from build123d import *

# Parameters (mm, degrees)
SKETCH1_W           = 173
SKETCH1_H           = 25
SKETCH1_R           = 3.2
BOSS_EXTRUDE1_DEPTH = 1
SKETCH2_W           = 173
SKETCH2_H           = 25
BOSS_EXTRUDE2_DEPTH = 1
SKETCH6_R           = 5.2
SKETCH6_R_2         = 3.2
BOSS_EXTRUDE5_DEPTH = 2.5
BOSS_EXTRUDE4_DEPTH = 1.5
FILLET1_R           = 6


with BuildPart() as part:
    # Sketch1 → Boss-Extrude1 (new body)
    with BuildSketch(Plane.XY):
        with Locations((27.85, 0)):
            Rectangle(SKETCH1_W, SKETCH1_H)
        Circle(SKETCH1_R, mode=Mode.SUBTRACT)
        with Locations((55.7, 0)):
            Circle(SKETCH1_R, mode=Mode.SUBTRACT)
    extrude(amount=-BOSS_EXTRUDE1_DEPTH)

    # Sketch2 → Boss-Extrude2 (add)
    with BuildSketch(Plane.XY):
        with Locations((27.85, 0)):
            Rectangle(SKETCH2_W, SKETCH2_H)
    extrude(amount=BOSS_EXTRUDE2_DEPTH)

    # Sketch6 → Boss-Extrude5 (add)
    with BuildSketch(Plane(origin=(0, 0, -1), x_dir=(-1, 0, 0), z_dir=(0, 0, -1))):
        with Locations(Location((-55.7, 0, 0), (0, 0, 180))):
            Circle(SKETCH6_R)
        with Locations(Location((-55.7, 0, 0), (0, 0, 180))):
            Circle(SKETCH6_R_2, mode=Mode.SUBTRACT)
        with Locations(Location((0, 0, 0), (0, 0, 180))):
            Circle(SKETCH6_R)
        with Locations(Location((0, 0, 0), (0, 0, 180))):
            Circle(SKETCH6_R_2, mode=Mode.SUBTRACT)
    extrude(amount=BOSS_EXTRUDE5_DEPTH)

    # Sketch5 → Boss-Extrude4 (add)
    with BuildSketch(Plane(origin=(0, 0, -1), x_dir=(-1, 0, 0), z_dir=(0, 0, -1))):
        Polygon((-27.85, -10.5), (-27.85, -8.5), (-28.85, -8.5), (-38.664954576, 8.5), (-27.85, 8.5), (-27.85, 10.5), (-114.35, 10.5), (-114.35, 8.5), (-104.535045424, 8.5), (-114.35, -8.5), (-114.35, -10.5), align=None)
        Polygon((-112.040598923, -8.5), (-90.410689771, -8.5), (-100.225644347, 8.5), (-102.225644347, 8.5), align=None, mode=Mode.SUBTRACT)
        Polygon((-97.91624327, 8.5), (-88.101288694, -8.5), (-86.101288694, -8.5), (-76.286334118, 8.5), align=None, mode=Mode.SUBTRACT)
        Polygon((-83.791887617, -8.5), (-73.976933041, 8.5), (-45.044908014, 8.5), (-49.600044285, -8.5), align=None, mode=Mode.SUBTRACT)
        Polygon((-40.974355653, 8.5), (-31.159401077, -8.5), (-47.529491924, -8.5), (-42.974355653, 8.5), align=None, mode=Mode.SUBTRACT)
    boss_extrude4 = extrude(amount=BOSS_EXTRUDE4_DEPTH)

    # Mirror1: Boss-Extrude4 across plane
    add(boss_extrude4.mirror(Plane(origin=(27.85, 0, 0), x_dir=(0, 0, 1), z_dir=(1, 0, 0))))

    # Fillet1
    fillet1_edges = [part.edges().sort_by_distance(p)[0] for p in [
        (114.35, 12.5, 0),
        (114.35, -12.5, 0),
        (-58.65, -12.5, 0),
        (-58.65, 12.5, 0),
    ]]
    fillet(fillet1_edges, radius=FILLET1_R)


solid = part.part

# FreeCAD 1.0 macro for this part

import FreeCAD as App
import Part
import Sketcher
from FreeCAD import Vector
Q = App.Units.Quantity


def edges_at(feature, points):
    """Names of the edges that pass closest to the given points."""
    edges = feature.Shape.Edges
    near = lambda p: min(range(len(edges)), key=lambda i: edges[i].distToShape(Part.Vertex(*p))[0])
    return sorted({f"Edge{near(p) + 1}" for p in points})

doc = App.newDocument("Part")
body = doc.addObject("PartDesign::Body", "Body")

sketch1 = doc.addObject("Sketcher::SketchObject", "Sketch")
body.addObject(sketch1)
sketch1.AttachmentSupport = (doc.XY_Plane, [""])
sketch1.MapMode = "FlatFace"
sketch1.addGeometry([
    Part.LineSegment(Vector(-58.65, 12.5, 0), Vector(-58.65, -12.5, 0)),
    Part.LineSegment(Vector(-58.65, -12.5, 0), Vector(114.35, -12.5, 0)),
    Part.LineSegment(Vector(114.35, -12.5, 0), Vector(114.35, 12.5, 0)),
    Part.LineSegment(Vector(114.35, 12.5, 0), Vector(-58.65, 12.5, 0)),
    Part.Circle(Vector(0, 0, 0), Vector(0, 0, 1), 3.2),
    Part.Circle(Vector(55.7, 0, 0), Vector(0, 0, 1), 3.2),
], False)
sketch1.addConstraint([
    Sketcher.Constraint("Coincident", 0, 2, 1, 1),
    Sketcher.Constraint("Coincident", 1, 2, 2, 1),
    Sketcher.Constraint("Coincident", 2, 2, 3, 1),
    Sketcher.Constraint("Coincident", 3, 2, 0, 1),
    Sketcher.Constraint("Vertical", 0),
    Sketcher.Constraint("Horizontal", 1),
    Sketcher.Constraint("Vertical", 2),
    Sketcher.Constraint("Horizontal", 3),
    Sketcher.Constraint("Coincident", 4, 3, -1, 1),
    Sketcher.Constraint("Equal", 4, 5),
    Sketcher.Constraint("PointOnObject", 5, 3, -1),
    Sketcher.Constraint("Diameter", 4, 6.4),
    Sketcher.Constraint("DistanceX", 1, 1, 1, 2, 173.0),
    Sketcher.Constraint("DistanceY", 0, 2, 0, 1, 25.0),
    Sketcher.Constraint("DistanceX", -1, 1, 5, 3, 55.7),
    Sketcher.Constraint("DistanceY", 0, 2, -1, 1, 12.5),
    Sketcher.Constraint("DistanceX", 0, 2, -1, 1, 58.65),
])
pad1 = doc.addObject("PartDesign::Pad", "Pad")
body.addObject(pad1)
pad1.Profile = sketch1
pad1.Length = 1
pad1.Reversed = True

sketch2 = doc.addObject("Sketcher::SketchObject", "Sketch001")
body.addObject(sketch2)
sketch2.AttachmentSupport = (doc.XY_Plane, [""])
sketch2.MapMode = "FlatFace"
sketch2.addGeometry([
    Part.LineSegment(Vector(-58.65, 12.5, 0), Vector(-58.65, -12.5, 0)),
    Part.LineSegment(Vector(-58.65, -12.5, 0), Vector(114.35, -12.5, 0)),
    Part.LineSegment(Vector(114.35, -12.5, 0), Vector(114.35, 12.5, 0)),
    Part.LineSegment(Vector(114.35, 12.5, 0), Vector(-58.65, 12.5, 0)),
], False)
sketch2.addConstraint([
    Sketcher.Constraint("Coincident", 0, 2, 1, 1),
    Sketcher.Constraint("Coincident", 1, 2, 2, 1),
    Sketcher.Constraint("Coincident", 2, 2, 3, 1),
    Sketcher.Constraint("Coincident", 3, 2, 0, 1),
    Sketcher.Constraint("Vertical", 0),
    Sketcher.Constraint("Horizontal", 1),
    Sketcher.Constraint("Vertical", 2),
    Sketcher.Constraint("Horizontal", 3),
    Sketcher.Constraint("DistanceX", 1, 1, 1, 2, 173.0),
    Sketcher.Constraint("DistanceY", 0, 2, 0, 1, 25.0),
    Sketcher.Constraint("DistanceY", 0, 2, -1, 1, 12.5),
    Sketcher.Constraint("DistanceX", 0, 2, -1, 1, 58.65),
])
pad2 = doc.addObject("PartDesign::Pad", "Pad001")
body.addObject(pad2)
pad2.Profile = sketch2
pad2.Length = 1

sketch3 = doc.addObject("Sketcher::SketchObject", "Sketch002")
body.addObject(sketch3)
sketch3.AttachmentSupport = (doc.XY_Plane, [""])
sketch3.MapMode = "FlatFace"
sketch3.AttachmentOffset = App.Placement(Vector(0, 0, -1), App.Rotation())
sketch3.addGeometry([
    Part.Circle(Vector(55.7, 0, 0), Vector(0, 0, 1), 5.2),
    Part.Circle(Vector(55.7, 0, 0), Vector(0, 0, 1), 3.2),
    Part.Circle(Vector(0, 0, 0), Vector(0, 0, 1), 5.2),
    Part.Circle(Vector(0, 0, 0), Vector(0, 0, 1), 3.2),
], False)
sketch3.addConstraint([
    Sketcher.Constraint("Coincident", 2, 3, -1, 1),
    Sketcher.Constraint("Coincident", 3, 3, -1, 1),
    Sketcher.Constraint("Coincident", 1, 3, 0, 3),
    Sketcher.Constraint("Equal", 0, 2),
    Sketcher.Constraint("Equal", 1, 3),
    Sketcher.Constraint("PointOnObject", 0, 3, -1),
    Sketcher.Constraint("Diameter", 0, 10.4),
    Sketcher.Constraint("Diameter", 1, 6.4),
    Sketcher.Constraint("DistanceX", -1, 1, 0, 3, 55.7),
])
pad3 = doc.addObject("PartDesign::Pad", "Pad002")
body.addObject(pad3)
pad3.Profile = sketch3
pad3.Length = 2.5
pad3.Reversed = True

sketch4 = doc.addObject("Sketcher::SketchObject", "Sketch003")
body.addObject(sketch4)
sketch4.AttachmentSupport = (doc.XY_Plane, [""])
sketch4.MapMode = "FlatFace"
sketch4.AttachmentOffset = App.Placement(Vector(0, 0, -1), App.Rotation())
sketch4.addGeometry([
    Part.LineSegment(Vector(27.85, -10.5, 0), Vector(27.85, -8.5, 0)),
    Part.LineSegment(Vector(27.85, -8.5, 0), Vector(28.85, -8.5, 0)),
    Part.LineSegment(Vector(28.85, -8.5, 0), Vector(38.664955, 8.5, 0)),
    Part.LineSegment(Vector(38.664955, 8.5, 0), Vector(27.85, 8.5, 0)),
    Part.LineSegment(Vector(27.85, 8.5, 0), Vector(27.85, 10.5, 0)),
    Part.LineSegment(Vector(27.85, 10.5, 0), Vector(114.35, 10.5, 0)),
    Part.LineSegment(Vector(114.35, 10.5, 0), Vector(114.35, 8.5, 0)),
    Part.LineSegment(Vector(114.35, 8.5, 0), Vector(104.535045, 8.5, 0)),
    Part.LineSegment(Vector(104.535045, 8.5, 0), Vector(114.35, -8.5, 0)),
    Part.LineSegment(Vector(114.35, -8.5, 0), Vector(114.35, -10.5, 0)),
    Part.LineSegment(Vector(114.35, -10.5, 0), Vector(27.85, -10.5, 0)),
    Part.LineSegment(Vector(42.974356, 8.5, 0), Vector(40.974356, 8.5, 0)),
    Part.LineSegment(Vector(40.974356, 8.5, 0), Vector(31.159401, -8.5, 0)),
    Part.LineSegment(Vector(31.159401, -8.5, 0), Vector(47.529492, -8.5, 0)),
    Part.LineSegment(Vector(47.529492, -8.5, 0), Vector(42.974356, 8.5, 0)),
    Part.LineSegment(Vector(90.41069, -8.5, 0), Vector(112.040599, -8.5, 0)),
    Part.LineSegment(Vector(112.040599, -8.5, 0), Vector(102.225644, 8.5, 0)),
    Part.LineSegment(Vector(102.225644, 8.5, 0), Vector(100.225644, 8.5, 0)),
    Part.LineSegment(Vector(100.225644, 8.5, 0), Vector(90.41069, -8.5, 0)),
    Part.LineSegment(Vector(88.101289, -8.5, 0), Vector(97.916243, 8.5, 0)),
    Part.LineSegment(Vector(97.916243, 8.5, 0), Vector(76.286334, 8.5, 0)),
    Part.LineSegment(Vector(76.286334, 8.5, 0), Vector(86.101289, -8.5, 0)),
    Part.LineSegment(Vector(86.101289, -8.5, 0), Vector(88.101289, -8.5, 0)),
    Part.LineSegment(Vector(49.600044, -8.5, 0), Vector(83.791888, -8.5, 0)),
    Part.LineSegment(Vector(83.791888, -8.5, 0), Vector(73.976933, 8.5, 0)),
    Part.LineSegment(Vector(73.976933, 8.5, 0), Vector(45.044908, 8.5, 0)),
    Part.LineSegment(Vector(45.044908, 8.5, 0), Vector(49.600044, -8.5, 0)),
], False)
sketch4.addConstraint([
    Sketcher.Constraint("Coincident", 0, 2, 1, 1),
    Sketcher.Constraint("Coincident", 1, 2, 2, 1),
    Sketcher.Constraint("Coincident", 2, 2, 3, 1),
    Sketcher.Constraint("Coincident", 3, 2, 4, 1),
    Sketcher.Constraint("Coincident", 4, 2, 5, 1),
    Sketcher.Constraint("Coincident", 5, 2, 6, 1),
    Sketcher.Constraint("Coincident", 6, 2, 7, 1),
    Sketcher.Constraint("Coincident", 7, 2, 8, 1),
    Sketcher.Constraint("Coincident", 8, 2, 9, 1),
    Sketcher.Constraint("Coincident", 9, 2, 10, 1),
    Sketcher.Constraint("Coincident", 10, 2, 0, 1),
    Sketcher.Constraint("Coincident", 11, 2, 12, 1),
    Sketcher.Constraint("Coincident", 12, 2, 13, 1),
    Sketcher.Constraint("Coincident", 13, 2, 14, 1),
    Sketcher.Constraint("Coincident", 14, 2, 11, 1),
    Sketcher.Constraint("Coincident", 15, 2, 16, 1),
    Sketcher.Constraint("Coincident", 16, 2, 17, 1),
    Sketcher.Constraint("Coincident", 17, 2, 18, 1),
    Sketcher.Constraint("Coincident", 18, 2, 15, 1),
    Sketcher.Constraint("Coincident", 19, 2, 20, 1),
    Sketcher.Constraint("Coincident", 20, 2, 21, 1),
    Sketcher.Constraint("Coincident", 21, 2, 22, 1),
    Sketcher.Constraint("Coincident", 22, 2, 19, 1),
    Sketcher.Constraint("Coincident", 23, 2, 24, 1),
    Sketcher.Constraint("Coincident", 24, 2, 25, 1),
    Sketcher.Constraint("Coincident", 25, 2, 26, 1),
    Sketcher.Constraint("Coincident", 26, 2, 23, 1),
    Sketcher.Constraint("Vertical", 0),
    Sketcher.Constraint("Horizontal", 1),
    Sketcher.Constraint("Horizontal", 3),
    Sketcher.Constraint("Vertical", 4),
    Sketcher.Constraint("Horizontal", 5),
    Sketcher.Constraint("Vertical", 6),
    Sketcher.Constraint("Horizontal", 7),
    Sketcher.Constraint("Vertical", 9),
    Sketcher.Constraint("Horizontal", 10),
    Sketcher.Constraint("Horizontal", 11),
    Sketcher.Constraint("Horizontal", 13),
    Sketcher.Constraint("Horizontal", 15),
    Sketcher.Constraint("Horizontal", 17),
    Sketcher.Constraint("Horizontal", 20),
    Sketcher.Constraint("Horizontal", 22),
    Sketcher.Constraint("Horizontal", 23),
    Sketcher.Constraint("Horizontal", 25),
    Sketcher.Constraint("Symmetric", 0, 2, 3, 2, -1),
    Sketcher.Constraint("Symmetric", 6, 2, 8, 2, -1),
    Sketcher.Constraint("Parallel", 2, 12),
    Sketcher.Constraint("Parallel", 8, 16),
    Sketcher.Constraint("Parallel", 12, 18),
    Sketcher.Constraint("Parallel", 18, 19),
    Sketcher.Constraint("Parallel", 16, 21),
    Sketcher.Constraint("Parallel", 21, 24),
    Sketcher.Constraint("Parallel", 14, 26),
    Sketcher.Constraint("Horizontal", 3, 2, 6, 2),
    Sketcher.Constraint("Horizontal", 7, 2, 11, 2),
    Sketcher.Constraint("Horizontal", 8, 2, 12, 2),
    Sketcher.Constraint("Horizontal", 13, 2, 15, 2),
    Sketcher.Constraint("Horizontal", 14, 2, 16, 2),
    Sketcher.Constraint("Horizontal", 17, 2, 19, 2),
    Sketcher.Constraint("Horizontal", 18, 2, 21, 2),
    Sketcher.Constraint("Horizontal", 22, 2, 23, 2),
    Sketcher.Constraint("Horizontal", 20, 2, 24, 2),
    Sketcher.Constraint("Equal", 11, 17),
    Sketcher.Constraint("Equal", 15, 20),
    Sketcher.Constraint("Equal", 22, 0),
    Sketcher.Constraint("Equal", 0, 4),
    Sketcher.Constraint("Equal", 2, 8),
    Sketcher.Constraint("DistanceX", 1, 1, 1, 2, 1.0),
    Sketcher.Constraint("DistanceX", 11, 2, 11, 1, 2.0),
    Sketcher.Constraint("Angle", 2, Q("60 deg")),
    Sketcher.Constraint("Angle", 14, Q("105 deg")),
    Sketcher.Constraint("DistanceX", 5, 1, 5, 2, 86.5),
    Sketcher.Constraint("DistanceY", 1, 2, 2, 2, 17.0),
    Sketcher.Constraint("DistanceX", -1, 1, 0, 2, 27.85),
    Sketcher.Constraint("DistanceX", -1, 1, 12, 2, 31.159401),
    Sketcher.Constraint("DistanceX", -1, 1, 15, 2, 112.040599),
    Sketcher.Constraint("DistanceX", 19, 2, 17, 2, 2.309401),
    Sketcher.Constraint("DistanceX", 23, 2, 21, 2, 2.309401),
    Sketcher.Constraint("DistanceX", 23, 1, 23, 2, 34.191843),
])
pad4 = doc.addObject("PartDesign::Pad", "Pad003")
body.addObject(pad4)
pad4.Profile = sketch4
pad4.Length = 1.5
pad4.Reversed = True
doc.recompute()

datumplane = doc.addObject("PartDesign::Plane", "DatumPlane")
body.addObject(datumplane)
datumplane.AttachmentSupport = (doc.YZ_Plane, [""])
datumplane.MapMode = "FlatFace"
datumplane.AttachmentOffset = App.Placement(Vector(0, 0, 27.85), App.Rotation())
mirrored = doc.addObject("PartDesign::Mirrored", "Mirrored")
body.addObject(mirrored)
mirrored.Originals = [pad4]
mirrored.MirrorPlane = (datumplane, [""])
body.Tip = mirrored
doc.recompute()

fillet = doc.addObject("PartDesign::Fillet", "Fillet")
body.addObject(fillet)
fillet.Base = (mirrored, edges_at(mirrored, [
    (114.35, 12.5, 0),
    (114.35, -12.5, 0),
    (-58.65, -12.5, 0),
    (-58.65, 12.5, 0),
]))
fillet.Radius = 6

doc.recompute()
